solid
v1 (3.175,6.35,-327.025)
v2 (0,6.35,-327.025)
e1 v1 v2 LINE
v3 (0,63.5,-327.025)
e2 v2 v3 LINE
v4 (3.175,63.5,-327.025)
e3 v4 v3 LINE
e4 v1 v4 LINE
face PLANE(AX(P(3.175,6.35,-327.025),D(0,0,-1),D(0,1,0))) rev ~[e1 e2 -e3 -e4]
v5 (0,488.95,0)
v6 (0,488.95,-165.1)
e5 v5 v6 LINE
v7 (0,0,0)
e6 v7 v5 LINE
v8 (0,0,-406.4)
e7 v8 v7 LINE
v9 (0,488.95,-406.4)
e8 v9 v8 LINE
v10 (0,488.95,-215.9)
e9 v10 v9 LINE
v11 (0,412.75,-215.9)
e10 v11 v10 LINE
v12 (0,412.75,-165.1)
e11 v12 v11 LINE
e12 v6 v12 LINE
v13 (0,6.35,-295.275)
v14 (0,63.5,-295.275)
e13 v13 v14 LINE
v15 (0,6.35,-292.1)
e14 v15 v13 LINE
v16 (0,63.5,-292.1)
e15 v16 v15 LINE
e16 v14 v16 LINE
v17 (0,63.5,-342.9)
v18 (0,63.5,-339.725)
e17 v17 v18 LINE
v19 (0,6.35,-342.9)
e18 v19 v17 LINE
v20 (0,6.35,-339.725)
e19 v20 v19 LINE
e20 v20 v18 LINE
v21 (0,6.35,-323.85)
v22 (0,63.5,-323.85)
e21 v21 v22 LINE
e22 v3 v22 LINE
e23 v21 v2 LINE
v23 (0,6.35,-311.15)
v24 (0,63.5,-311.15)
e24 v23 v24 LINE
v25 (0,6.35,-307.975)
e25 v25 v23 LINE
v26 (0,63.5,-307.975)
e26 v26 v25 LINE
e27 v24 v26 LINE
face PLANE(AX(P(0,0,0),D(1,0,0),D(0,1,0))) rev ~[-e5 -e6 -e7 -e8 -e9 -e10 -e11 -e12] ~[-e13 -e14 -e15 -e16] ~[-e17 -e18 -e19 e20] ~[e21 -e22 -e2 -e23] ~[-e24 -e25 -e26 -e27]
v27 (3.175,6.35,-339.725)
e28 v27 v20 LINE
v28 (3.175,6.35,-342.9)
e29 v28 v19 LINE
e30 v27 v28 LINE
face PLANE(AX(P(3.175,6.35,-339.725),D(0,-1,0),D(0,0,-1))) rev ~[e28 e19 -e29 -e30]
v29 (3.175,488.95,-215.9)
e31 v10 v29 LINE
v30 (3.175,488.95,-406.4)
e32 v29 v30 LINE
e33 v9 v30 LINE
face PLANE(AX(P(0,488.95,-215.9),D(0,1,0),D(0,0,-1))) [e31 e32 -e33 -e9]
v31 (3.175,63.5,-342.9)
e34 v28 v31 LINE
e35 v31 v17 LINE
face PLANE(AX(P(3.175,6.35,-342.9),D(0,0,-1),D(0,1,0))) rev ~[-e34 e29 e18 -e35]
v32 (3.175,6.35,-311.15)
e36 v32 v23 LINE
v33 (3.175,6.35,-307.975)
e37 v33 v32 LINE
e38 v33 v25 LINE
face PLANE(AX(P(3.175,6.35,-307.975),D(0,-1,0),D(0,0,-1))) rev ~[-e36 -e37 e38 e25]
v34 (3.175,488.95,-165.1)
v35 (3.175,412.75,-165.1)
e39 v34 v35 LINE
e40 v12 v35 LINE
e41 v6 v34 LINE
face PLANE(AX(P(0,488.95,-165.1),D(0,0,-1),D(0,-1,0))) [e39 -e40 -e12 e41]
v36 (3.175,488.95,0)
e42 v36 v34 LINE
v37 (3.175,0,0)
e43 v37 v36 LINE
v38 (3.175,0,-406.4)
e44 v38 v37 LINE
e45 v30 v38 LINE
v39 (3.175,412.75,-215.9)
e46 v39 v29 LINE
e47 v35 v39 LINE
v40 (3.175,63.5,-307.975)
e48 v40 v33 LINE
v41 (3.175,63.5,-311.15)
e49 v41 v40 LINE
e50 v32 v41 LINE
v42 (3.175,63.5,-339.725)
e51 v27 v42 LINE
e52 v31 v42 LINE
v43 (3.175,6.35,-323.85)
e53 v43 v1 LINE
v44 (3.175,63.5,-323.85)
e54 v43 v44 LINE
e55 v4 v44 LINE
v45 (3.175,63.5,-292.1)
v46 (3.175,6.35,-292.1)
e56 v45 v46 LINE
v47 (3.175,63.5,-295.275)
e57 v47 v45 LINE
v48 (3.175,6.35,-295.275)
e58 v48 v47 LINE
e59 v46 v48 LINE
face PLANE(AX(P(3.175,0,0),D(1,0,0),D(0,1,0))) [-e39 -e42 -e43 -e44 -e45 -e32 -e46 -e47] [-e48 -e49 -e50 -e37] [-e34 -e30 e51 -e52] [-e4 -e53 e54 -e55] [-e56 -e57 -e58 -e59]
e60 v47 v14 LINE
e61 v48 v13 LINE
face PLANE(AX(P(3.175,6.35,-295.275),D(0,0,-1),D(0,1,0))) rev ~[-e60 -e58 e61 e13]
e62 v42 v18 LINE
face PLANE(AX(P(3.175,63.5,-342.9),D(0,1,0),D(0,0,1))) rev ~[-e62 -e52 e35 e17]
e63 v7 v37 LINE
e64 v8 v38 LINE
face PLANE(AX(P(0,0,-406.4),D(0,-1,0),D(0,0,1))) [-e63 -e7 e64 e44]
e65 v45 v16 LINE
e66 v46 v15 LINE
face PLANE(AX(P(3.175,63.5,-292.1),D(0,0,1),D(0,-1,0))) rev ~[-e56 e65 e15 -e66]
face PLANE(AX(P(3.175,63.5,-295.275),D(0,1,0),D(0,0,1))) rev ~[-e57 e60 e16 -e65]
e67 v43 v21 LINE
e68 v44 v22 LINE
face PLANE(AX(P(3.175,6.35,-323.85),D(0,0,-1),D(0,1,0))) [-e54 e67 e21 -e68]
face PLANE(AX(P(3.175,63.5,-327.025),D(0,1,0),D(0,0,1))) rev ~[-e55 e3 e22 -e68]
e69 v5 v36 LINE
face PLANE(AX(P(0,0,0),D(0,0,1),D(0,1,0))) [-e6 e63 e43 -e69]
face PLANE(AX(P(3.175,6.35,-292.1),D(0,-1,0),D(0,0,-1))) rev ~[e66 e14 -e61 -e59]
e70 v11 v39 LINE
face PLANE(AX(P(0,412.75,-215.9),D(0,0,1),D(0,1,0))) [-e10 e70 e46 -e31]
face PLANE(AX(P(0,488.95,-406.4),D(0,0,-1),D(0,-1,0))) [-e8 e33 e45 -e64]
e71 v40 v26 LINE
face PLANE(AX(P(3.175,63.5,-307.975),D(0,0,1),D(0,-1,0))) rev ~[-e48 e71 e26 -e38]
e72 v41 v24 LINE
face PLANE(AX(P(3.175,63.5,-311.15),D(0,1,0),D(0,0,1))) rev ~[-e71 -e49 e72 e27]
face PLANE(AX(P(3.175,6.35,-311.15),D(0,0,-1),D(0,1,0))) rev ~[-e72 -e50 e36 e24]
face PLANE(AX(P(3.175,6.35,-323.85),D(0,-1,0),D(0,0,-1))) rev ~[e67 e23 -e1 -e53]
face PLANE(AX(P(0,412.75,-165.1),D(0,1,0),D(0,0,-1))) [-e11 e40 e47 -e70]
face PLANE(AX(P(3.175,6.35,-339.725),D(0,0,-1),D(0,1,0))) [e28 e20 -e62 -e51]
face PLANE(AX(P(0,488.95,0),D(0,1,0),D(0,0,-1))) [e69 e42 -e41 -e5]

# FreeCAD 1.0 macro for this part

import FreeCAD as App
import Part
import Sketcher
Q = App.Units.Quantity

doc = App.newDocument("Part")
params = doc.addObject("Spreadsheet::Sheet", "Params")
for row, (alias, value) in enumerate([
    ("sketch1_width", "3 in"),
    ("sketch1_height", "16 in"),
    ("sketch1_height2", "2 in"),
    ("sketch1_height3", "7.5 in"),
    ("sketch1_width2", "19.25 in"),
    ("pad1_length", "0.125 in"),
    ("sketch2_height", "0.125 in"),
    ("sketch2_width", "2.25 in"),
    ("pocket1_length", "1 in"),
], start=1):
    params.set(f"A{row}", alias)
    params.set(f"B{row}", "=" + value)
    params.setAlias(f"B{row}", alias)

body = doc.addObject("PartDesign::Body", "Body")

# Sketch on YZ plane
sketch1 = body.newObject("Sketcher::SketchObject", "Sketch")
sketch1.AttachmentSupport = (doc.getObject("YZ_Plane"), [""])
sketch1.MapMode = "FlatFace"
sketch1.addGeometry(Part.LineSegment(App.Vector(489, 0, 0), App.Vector(0, 0, 0)), False)
sketch1.addGeometry(Part.LineSegment(App.Vector(0, 0, 0), App.Vector(0, -406, 0)), False)
sketch1.addGeometry(Part.LineSegment(App.Vector(0, -406, 0), App.Vector(489, -406, 0)), False)
sketch1.addGeometry(Part.LineSegment(App.Vector(489, -406, 0), App.Vector(489, -216, 0)), False)
sketch1.addGeometry(Part.LineSegment(App.Vector(489, -216, 0), App.Vector(413, -216, 0)), False)
sketch1.addGeometry(Part.LineSegment(App.Vector(413, -216, 0), App.Vector(413, -165, 0)), False)
sketch1.addGeometry(Part.LineSegment(App.Vector(413, -165, 0), App.Vector(489, -165, 0)), False)
sketch1.addGeometry(Part.LineSegment(App.Vector(489, -165, 0), App.Vector(489, 0, 0)), False)
sketch1.addConstraint(Sketcher.Constraint("Coincident", 0, 2, 1, 1))
sketch1.addConstraint(Sketcher.Constraint("Coincident", 1, 2, 2, 1))
sketch1.addConstraint(Sketcher.Constraint("Coincident", 2, 2, 3, 1))
sketch1.addConstraint(Sketcher.Constraint("Coincident", 3, 2, 4, 1))
sketch1.addConstraint(Sketcher.Constraint("Coincident", 4, 2, 5, 1))
sketch1.addConstraint(Sketcher.Constraint("Coincident", 5, 2, 6, 1))
sketch1.addConstraint(Sketcher.Constraint("Coincident", 6, 2, 7, 1))
sketch1.addConstraint(Sketcher.Constraint("Coincident", 7, 2, 0, 1))
sketch1.addConstraint(Sketcher.Constraint("Horizontal", 0))
sketch1.addConstraint(Sketcher.Constraint("Vertical", 1))
sketch1.addConstraint(Sketcher.Constraint("Horizontal", 2))
sketch1.addConstraint(Sketcher.Constraint("Vertical", 3))
sketch1.addConstraint(Sketcher.Constraint("Horizontal", 4))
sketch1.addConstraint(Sketcher.Constraint("Vertical", 5))
sketch1.addConstraint(Sketcher.Constraint("Horizontal", 6))
sketch1.addConstraint(Sketcher.Constraint("Vertical", 7))
sketch1.addConstraint(Sketcher.Constraint("Coincident", 0, 2, -1, 1))
sketch1.addConstraint(Sketcher.Constraint("Vertical", 3, 2, 6, 2))
sketch1.addConstraint(Sketcher.Constraint("DistanceX", 4, 2, 4, 1, Q("3 in")))
sketch1.addConstraint(Sketcher.Constraint("DistanceY", 1, 2, 1, 1, Q("16 in")))
sketch1.addConstraint(Sketcher.Constraint("DistanceY", 5, 1, 5, 2, Q("2 in")))
sketch1.addConstraint(Sketcher.Constraint("DistanceY", 3, 1, 3, 2, Q("7.5 in")))
sketch1.addConstraint(Sketcher.Constraint("DistanceX", 0, 2, 0, 1, Q("19.25 in")))
sketch1.setExpression("Constraints[18]", "Params.sketch1_width")
sketch1.setExpression("Constraints[19]", "Params.sketch1_height")
sketch1.setExpression("Constraints[20]", "Params.sketch1_height2")
sketch1.setExpression("Constraints[21]", "Params.sketch1_height3")
sketch1.setExpression("Constraints[22]", "Params.sketch1_width2")
pad1 = body.newObject("PartDesign::Pad", "Pad")
pad1.Profile = sketch1
pad1.setExpression("Length", "Params.pad1_length")

# Sketch on YZ plane
sketch2 = body.newObject("Sketcher::SketchObject", "Sketch001")
sketch2.AttachmentSupport = (doc.getObject("YZ_Plane"), [""])
sketch2.MapMode = "FlatFace"
sketch2.AttachmentOffset = App.Placement(App.Vector(0, 0, 0.125 * 25.4), App.Rotation())
sketch2.addGeometry(Part.LineSegment(App.Vector(6.3, -342.9, 0), App.Vector(63.5, -342.9, 0)), False)
sketch2.addGeometry(Part.LineSegment(App.Vector(63.5, -342.9, 0), App.Vector(63.5, -339.7, 0)), False)
sketch2.addGeometry(Part.LineSegment(App.Vector(63.5, -339.7, 0), App.Vector(6.3, -339.7, 0)), False)
sketch2.addGeometry(Part.LineSegment(App.Vector(6.3, -339.7, 0), App.Vector(6.3, -342.9, 0)), False)
sketch2.addGeometry(Part.LineSegment(App.Vector(63.5, -295.3, 0), App.Vector(63.5, -292.1, 0)), False)
sketch2.addGeometry(Part.LineSegment(App.Vector(63.5, -292.1, 0), App.Vector(6.3, -292.1, 0)), False)
sketch2.addGeometry(Part.LineSegment(App.Vector(6.3, -292.1, 0), App.Vector(6.3, -295.3, 0)), False)
sketch2.addGeometry(Part.LineSegment(App.Vector(6.3, -295.3, 0), App.Vector(63.5, -295.3, 0)), False)
sketch2.addGeometry(Part.LineSegment(App.Vector(63.5, -311.1, 0), App.Vector(63.5, -308, 0)), False)
sketch2.addGeometry(Part.LineSegment(App.Vector(63.5, -308, 0), App.Vector(6.3, -308, 0)), False)
sketch2.addGeometry(Part.LineSegment(App.Vector(6.3, -308, 0), App.Vector(6.3, -311.1, 0)), False)
sketch2.addGeometry(Part.LineSegment(App.Vector(6.3, -311.1, 0), App.Vector(63.5, -311.1, 0)), False)
sketch2.addGeometry(Part.LineSegment(App.Vector(63.5, -323.9, 0), App.Vector(6.3, -323.9, 0)), False)
sketch2.addGeometry(Part.LineSegment(App.Vector(6.3, -323.9, 0), App.Vector(6.3, -327, 0)), False)
sketch2.addGeometry(Part.LineSegment(App.Vector(6.3, -327, 0), App.Vector(63.5, -327, 0)), False)
sketch2.addGeometry(Part.LineSegment(App.Vector(63.5, -327, 0), App.Vector(63.5, -323.9, 0)), False)
sketch2.addConstraint(Sketcher.Constraint("Coincident", 0, 2, 1, 1))
sketch2.addConstraint(Sketcher.Constraint("Coincident", 1, 2, 2, 1))
sketch2.addConstraint(Sketcher.Constraint("Coincident", 2, 2, 3, 1))
sketch2.addConstraint(Sketcher.Constraint("Coincident", 3, 2, 0, 1))
sketch2.addConstraint(Sketcher.Constraint("Coincident", 4, 2, 5, 1))
sketch2.addConstraint(Sketcher.Constraint("Coincident", 5, 2, 6, 1))
sketch2.addConstraint(Sketcher.Constraint("Coincident", 6, 2, 7, 1))
sketch2.addConstraint(Sketcher.Constraint("Coincident", 7, 2, 4, 1))
sketch2.addConstraint(Sketcher.Constraint("Coincident", 8, 2, 9, 1))
sketch2.addConstraint(Sketcher.Constraint("Coincident", 9, 2, 10, 1))
sketch2.addConstraint(Sketcher.Constraint("Coincident", 10, 2, 11, 1))
sketch2.addConstraint(Sketcher.Constraint("Coincident", 11, 2, 8, 1))
sketch2.addConstraint(Sketcher.Constraint("Coincident", 12, 2, 13, 1))
sketch2.addConstraint(Sketcher.Constraint("Coincident", 13, 2, 14, 1))
sketch2.addConstraint(Sketcher.Constraint("Coincident", 14, 2, 15, 1))
sketch2.addConstraint(Sketcher.Constraint("Coincident", 15, 2, 12, 1))
sketch2.addConstraint(Sketcher.Constraint("Horizontal", 0))
sketch2.addConstraint(Sketcher.Constraint("Vertical", 1))
sketch2.addConstraint(Sketcher.Constraint("Horizontal", 2))
sketch2.addConstraint(Sketcher.Constraint("Vertical", 3))
sketch2.addConstraint(Sketcher.Constraint("Vertical", 4))
sketch2.addConstraint(Sketcher.Constraint("Horizontal", 5))
sketch2.addConstraint(Sketcher.Constraint("Vertical", 6))
sketch2.addConstraint(Sketcher.Constraint("Horizontal", 7))
sketch2.addConstraint(Sketcher.Constraint("Vertical", 8))
sketch2.addConstraint(Sketcher.Constraint("Horizontal", 9))
sketch2.addConstraint(Sketcher.Constraint("Vertical", 10))
sketch2.addConstraint(Sketcher.Constraint("Horizontal", 11))
sketch2.addConstraint(Sketcher.Constraint("Horizontal", 12))
sketch2.addConstraint(Sketcher.Constraint("Vertical", 13))
sketch2.addConstraint(Sketcher.Constraint("Horizontal", 14))
sketch2.addConstraint(Sketcher.Constraint("Vertical", 15))
sketch2.addConstraint(Sketcher.Constraint("Vertical", 1, 2, 4, 2))
sketch2.addConstraint(Sketcher.Constraint("Vertical", 3, 2, 5, 2))
sketch2.addConstraint(Sketcher.Constraint("Vertical", 7, 2, 8, 2))
sketch2.addConstraint(Sketcher.Constraint("Vertical", 6, 2, 9, 2))
sketch2.addConstraint(Sketcher.Constraint("Vertical", 10, 2, 12, 2))
sketch2.addConstraint(Sketcher.Constraint("Vertical", 11, 2, 14, 2))
sketch2.addConstraint(Sketcher.Constraint("Equal", 3, 4))
sketch2.addConstraint(Sketcher.Constraint("Equal", 6, 8))
sketch2.addConstraint(Sketcher.Constraint("Equal", 10, 13))
sketch2.addConstraint(Sketcher.Constraint("DistanceY", 1, 1, 1, 2, Q("0.125 in")))
sketch2.addConstraint(Sketcher.Constraint("DistanceY", 0, 2, 4, 2, Q("2 in")))
sketch2.addConstraint(Sketcher.Constraint("DistanceX", 0, 1, 0, 2, Q("2.25 in")))
sketch2.addConstraint(Sketcher.Constraint("DistanceX", -1, 1, 0, 2, Q("2.5 in")))
sketch2.addConstraint(Sketcher.Constraint("DistanceY", 0, 2, -1, 1, Q("13.5 in")))
sketch2.addConstraint(Sketcher.Constraint("DistanceY", 8, 2, 7, 2, Q("0.5 in")))
sketch2.addConstraint(Sketcher.Constraint("DistanceY", 12, 2, 10, 2, Q("0.5 in")))
sketch2.setExpression("Constraints[41]", "Params.sketch2_height")
sketch2.setExpression("Constraints[43]", "Params.sketch2_width")
pocket1 = body.newObject("PartDesign::Pocket", "Pocket")
pocket1.Profile = sketch2
pocket1.setExpression("Length", "Params.pocket1_length")

doc.recompute()
